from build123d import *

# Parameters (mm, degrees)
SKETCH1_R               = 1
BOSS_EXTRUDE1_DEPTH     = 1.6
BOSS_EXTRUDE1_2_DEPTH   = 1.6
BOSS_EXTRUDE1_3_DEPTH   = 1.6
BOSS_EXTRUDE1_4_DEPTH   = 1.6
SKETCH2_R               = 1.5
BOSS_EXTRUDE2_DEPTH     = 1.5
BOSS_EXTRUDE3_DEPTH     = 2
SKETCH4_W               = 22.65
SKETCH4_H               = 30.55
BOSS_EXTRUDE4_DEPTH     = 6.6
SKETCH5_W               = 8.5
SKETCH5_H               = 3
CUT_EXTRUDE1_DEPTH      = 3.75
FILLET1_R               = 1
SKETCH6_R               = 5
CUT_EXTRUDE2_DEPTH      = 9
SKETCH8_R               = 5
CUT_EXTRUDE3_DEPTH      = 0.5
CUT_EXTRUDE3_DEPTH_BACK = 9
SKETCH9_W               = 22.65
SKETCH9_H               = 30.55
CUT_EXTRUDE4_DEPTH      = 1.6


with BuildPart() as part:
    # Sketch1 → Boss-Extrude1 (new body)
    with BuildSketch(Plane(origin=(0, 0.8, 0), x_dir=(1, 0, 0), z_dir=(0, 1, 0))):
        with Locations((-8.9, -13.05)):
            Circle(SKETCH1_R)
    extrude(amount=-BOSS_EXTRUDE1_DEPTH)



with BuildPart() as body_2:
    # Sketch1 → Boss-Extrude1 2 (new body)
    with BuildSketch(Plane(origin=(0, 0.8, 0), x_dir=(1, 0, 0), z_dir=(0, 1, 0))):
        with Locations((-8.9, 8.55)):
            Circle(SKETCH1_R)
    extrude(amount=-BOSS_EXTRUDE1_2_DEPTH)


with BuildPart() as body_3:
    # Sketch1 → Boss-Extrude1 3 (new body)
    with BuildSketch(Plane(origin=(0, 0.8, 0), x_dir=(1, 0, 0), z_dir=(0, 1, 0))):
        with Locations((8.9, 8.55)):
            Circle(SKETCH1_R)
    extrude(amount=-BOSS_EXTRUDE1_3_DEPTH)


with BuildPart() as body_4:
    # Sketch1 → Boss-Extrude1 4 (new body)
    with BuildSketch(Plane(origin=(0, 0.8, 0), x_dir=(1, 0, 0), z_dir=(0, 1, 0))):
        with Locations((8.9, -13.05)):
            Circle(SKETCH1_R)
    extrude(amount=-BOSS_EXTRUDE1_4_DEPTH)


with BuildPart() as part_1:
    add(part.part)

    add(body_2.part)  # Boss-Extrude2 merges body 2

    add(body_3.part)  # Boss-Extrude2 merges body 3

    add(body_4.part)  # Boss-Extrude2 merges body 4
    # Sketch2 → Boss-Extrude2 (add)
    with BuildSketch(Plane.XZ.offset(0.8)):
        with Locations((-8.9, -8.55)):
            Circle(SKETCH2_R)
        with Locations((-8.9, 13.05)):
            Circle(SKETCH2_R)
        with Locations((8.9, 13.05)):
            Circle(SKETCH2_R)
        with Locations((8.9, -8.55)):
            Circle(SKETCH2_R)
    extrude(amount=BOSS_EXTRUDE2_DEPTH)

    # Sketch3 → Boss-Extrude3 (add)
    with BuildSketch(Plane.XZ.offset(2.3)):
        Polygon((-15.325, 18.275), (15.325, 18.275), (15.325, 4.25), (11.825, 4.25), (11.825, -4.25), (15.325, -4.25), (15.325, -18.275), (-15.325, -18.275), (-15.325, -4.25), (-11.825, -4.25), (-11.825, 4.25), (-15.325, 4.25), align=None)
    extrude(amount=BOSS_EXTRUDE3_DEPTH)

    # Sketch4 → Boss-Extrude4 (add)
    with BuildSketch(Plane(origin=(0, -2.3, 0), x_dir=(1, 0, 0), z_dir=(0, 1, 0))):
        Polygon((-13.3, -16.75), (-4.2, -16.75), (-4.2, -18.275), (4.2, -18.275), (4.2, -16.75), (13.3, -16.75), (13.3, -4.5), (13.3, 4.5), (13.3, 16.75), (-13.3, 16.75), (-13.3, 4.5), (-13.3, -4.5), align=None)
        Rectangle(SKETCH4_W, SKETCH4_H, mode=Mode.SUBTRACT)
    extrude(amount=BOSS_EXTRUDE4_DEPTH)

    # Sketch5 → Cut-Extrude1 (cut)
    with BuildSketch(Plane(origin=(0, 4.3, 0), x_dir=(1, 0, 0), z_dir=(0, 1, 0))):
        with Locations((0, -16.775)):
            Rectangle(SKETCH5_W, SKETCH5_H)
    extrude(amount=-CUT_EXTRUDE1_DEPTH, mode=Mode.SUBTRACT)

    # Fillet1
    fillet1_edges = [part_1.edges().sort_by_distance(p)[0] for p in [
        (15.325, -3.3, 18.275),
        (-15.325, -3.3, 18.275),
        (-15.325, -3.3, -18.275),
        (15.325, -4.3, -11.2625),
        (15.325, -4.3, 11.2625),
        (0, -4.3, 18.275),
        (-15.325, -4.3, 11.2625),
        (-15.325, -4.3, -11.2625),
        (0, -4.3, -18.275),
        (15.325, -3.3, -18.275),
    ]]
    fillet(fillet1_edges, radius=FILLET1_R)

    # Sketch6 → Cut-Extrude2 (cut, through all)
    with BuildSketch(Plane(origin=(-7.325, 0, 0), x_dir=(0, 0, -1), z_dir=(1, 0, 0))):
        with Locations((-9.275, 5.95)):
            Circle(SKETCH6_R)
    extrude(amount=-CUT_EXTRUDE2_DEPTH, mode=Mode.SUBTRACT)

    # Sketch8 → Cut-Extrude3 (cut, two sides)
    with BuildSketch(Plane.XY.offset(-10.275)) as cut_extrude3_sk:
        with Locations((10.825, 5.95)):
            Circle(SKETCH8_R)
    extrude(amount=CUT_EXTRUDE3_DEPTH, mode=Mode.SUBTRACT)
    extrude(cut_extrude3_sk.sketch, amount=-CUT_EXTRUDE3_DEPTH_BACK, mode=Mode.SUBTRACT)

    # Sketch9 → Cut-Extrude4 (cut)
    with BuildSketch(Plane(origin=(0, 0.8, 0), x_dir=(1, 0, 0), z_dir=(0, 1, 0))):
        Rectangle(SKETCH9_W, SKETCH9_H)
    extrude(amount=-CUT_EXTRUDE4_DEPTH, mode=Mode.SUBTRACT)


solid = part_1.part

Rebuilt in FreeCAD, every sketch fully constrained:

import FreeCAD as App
import Part
import Sketcher


def edges_at(feature, points):
    """Names of the edges that pass closest to the given points."""
    edges = feature.Shape.Edges
    near = lambda p: min(range(len(edges)), key=lambda i: edges[i].distToShape(Part.Vertex(*p))[0])
    return sorted({f"Edge{near(p) + 1}" for p in points})

doc = App.newDocument("Part")
body = doc.addObject("PartDesign::Body", "Body")

sketch1 = body.newObject("Sketcher::SketchObject", "Sketch")
sketch1.AttachmentSupport = (doc.getObject("XZ_Plane"), [""])
sketch1.MapMode = "FlatFace"
sketch1.AttachmentOffset = App.Placement(App.Vector(0, 0, -0.8), App.Rotation())
sketch1.addGeometry(Part.Circle(App.Vector(-8.9, 13.1, 0), App.Vector(0, 0, 1), 1), False)
sketch1.addConstraint([
    Sketcher.Constraint("Diameter", 0, 2.0),
    Sketcher.Constraint("DistanceX", 0, 3, -1, 1, 8.9),
    Sketcher.Constraint("DistanceY", -1, 1, 0, 3, 13.05),
])
pad1 = body.newObject("PartDesign::Pad", "Pad")
pad1.Profile = sketch1
pad1.Length = 1.6
body2 = doc.addObject("PartDesign::Body", "Body001")

sketch2 = body2.newObject("Sketcher::SketchObject", "Sketch001")
sketch2.AttachmentSupport = (doc.getObject("XZ_Plane001"), [""])
sketch2.MapMode = "FlatFace"
sketch2.AttachmentOffset = App.Placement(App.Vector(0, 0, -0.8), App.Rotation())
sketch2.addGeometry(Part.Circle(App.Vector(-8.9, -8.6, 0), App.Vector(0, 0, 1), 1), False)
sketch2.addConstraint([
    Sketcher.Constraint("Diameter", 0, 2.0),
    Sketcher.Constraint("DistanceX", 0, 3, -1, 1, 8.9),
    Sketcher.Constraint("DistanceY", 0, 3, -1, 1, 8.55),
])
pad2 = body2.newObject("PartDesign::Pad", "Pad001")
pad2.Profile = sketch2
pad2.Length = 1.6
body3 = doc.addObject("PartDesign::Body", "Body002")

sketch3 = body3.newObject("Sketcher::SketchObject", "Sketch002")
sketch3.AttachmentSupport = (doc.getObject("XZ_Plane002"), [""])
sketch3.MapMode = "FlatFace"
sketch3.AttachmentOffset = App.Placement(App.Vector(0, 0, -0.8), App.Rotation())
sketch3.addGeometry(Part.Circle(App.Vector(8.9, -8.6, 0), App.Vector(0, 0, 1), 1), False)
sketch3.addConstraint([
    Sketcher.Constraint("Diameter", 0, 2.0),
    Sketcher.Constraint("DistanceX", -1, 1, 0, 3, 8.9),
    Sketcher.Constraint("DistanceY", 0, 3, -1, 1, 8.55),
])
pad3 = body3.newObject("PartDesign::Pad", "Pad002")
pad3.Profile = sketch3
pad3.Length = 1.6
body4 = doc.addObject("PartDesign::Body", "Body003")

sketch4 = body4.newObject("Sketcher::SketchObject", "Sketch003")
sketch4.AttachmentSupport = (doc.getObject("XZ_Plane003"), [""])
sketch4.MapMode = "FlatFace"
sketch4.AttachmentOffset = App.Placement(App.Vector(0, 0, -0.8), App.Rotation())
sketch4.addGeometry(Part.Circle(App.Vector(8.9, 13.1, 0), App.Vector(0, 0, 1), 1), False)
sketch4.addConstraint([
    Sketcher.Constraint("Diameter", 0, 2.0),
    Sketcher.Constraint("DistanceX", -1, 1, 0, 3, 8.9),
    Sketcher.Constraint("DistanceY", -1, 1, 0, 3, 13.05),
])
pad4 = body4.newObject("PartDesign::Pad", "Pad003")
pad4.Profile = sketch4
pad4.Length = 1.6
body.AllowCompound = True
doc.recompute()

boolean = body.newObject("PartDesign::Boolean", "Boolean")
boolean.Type = "Fuse"
boolean.addObjects([body2])
doc.recompute()

boolean2 = body.newObject("PartDesign::Boolean", "Boolean001")
boolean2.Type = "Fuse"
boolean2.addObjects([body3])
doc.recompute()

boolean3 = body.newObject("PartDesign::Boolean", "Boolean002")
boolean3.Type = "Fuse"
boolean3.addObjects([body4])

sketch5 = body.newObject("Sketcher::SketchObject", "Sketch004")
sketch5.AttachmentSupport = (doc.getObject("XZ_Plane"), [""])
sketch5.MapMode = "FlatFace"
sketch5.AttachmentOffset = App.Placement(App.Vector(0, 0, 0.8), App.Rotation())
sketch5.addGeometry([
    Part.Circle(App.Vector(-8.9, -8.6, 0), App.Vector(0, 0, 1), 1.5),
    Part.Circle(App.Vector(-8.9, 13.1, 0), App.Vector(0, 0, 1), 1.5),
    Part.Circle(App.Vector(8.9, 13.1, 0), App.Vector(0, 0, 1), 1.5),
    Part.Circle(App.Vector(8.9, -8.6, 0), App.Vector(0, 0, 1), 1.5),
], False)
sketch5.addConstraint([
    Sketcher.Constraint("Equal", 0, 1),
    Sketcher.Constraint("Equal", 1, 2),
    Sketcher.Constraint("Equal", 2, 3),
    Sketcher.Constraint("Symmetric", 1, 3, 2, 3, -2),
    Sketcher.Constraint("Symmetric", 0, 3, 3, 3, -2),
    Sketcher.Constraint("Vertical", 0, 3, 1, 3),
    Sketcher.Constraint("Diameter", 0, 3.0),
    Sketcher.Constraint("DistanceX", 0, 3, -1, 1, 8.9),
    Sketcher.Constraint("DistanceY", 0, 3, 1, 3, 21.6),
    Sketcher.Constraint("DistanceY", 0, 3, -1, 1, 8.55),
])
pad5 = body.newObject("PartDesign::Pad", "Pad004")
pad5.Profile = sketch5
pad5.Length = 1.5

sketch6 = body.newObject("Sketcher::SketchObject", "Sketch005")
sketch6.AttachmentSupport = (doc.getObject("XZ_Plane"), [""])
sketch6.MapMode = "FlatFace"
sketch6.AttachmentOffset = App.Placement(App.Vector(0, 0, 2.3), App.Rotation())
sketch6.addGeometry([
    Part.LineSegment(App.Vector(15.3, 18.3, 0), App.Vector(-15.3, 18.3, 0)),
    Part.LineSegment(App.Vector(-15.3, 18.3, 0), App.Vector(-15.3, 4.2, 0)),
    Part.LineSegment(App.Vector(-15.3, 4.2, 0), App.Vector(-11.8, 4.2, 0)),
    Part.LineSegment(App.Vector(-11.8, 4.2, 0), App.Vector(-11.8, -4.2, 0)),
    Part.LineSegment(App.Vector(-11.8, -4.2, 0), App.Vector(-15.3, -4.2, 0)),
    Part.LineSegment(App.Vector(-15.3, -4.2, 0), App.Vector(-15.3, -18.3, 0)),
    Part.LineSegment(App.Vector(-15.3, -18.3, 0), App.Vector(15.3, -18.3, 0)),
    Part.LineSegment(App.Vector(15.3, -18.3, 0), App.Vector(15.3, -4.2, 0)),
    Part.LineSegment(App.Vector(15.3, -4.2, 0), App.Vector(11.8, -4.2, 0)),
    Part.LineSegment(App.Vector(11.8, -4.2, 0), App.Vector(11.8, 4.2, 0)),
    Part.LineSegment(App.Vector(11.8, 4.2, 0), App.Vector(15.3, 4.2, 0)),
    Part.LineSegment(App.Vector(15.3, 4.2, 0), App.Vector(15.3, 18.3, 0)),
], False)
sketch6.addConstraint([
    Sketcher.Constraint("Coincident", 0, 2, 1, 1),
    Sketcher.Constraint("Coincident", 1, 2, 2, 1),
    Sketcher.Constraint("Coincident", 2, 2, 3, 1),
    Sketcher.Constraint("Coincident", 3, 2, 4, 1),
    Sketcher.Constraint("Coincident", 4, 2, 5, 1),
    Sketcher.Constraint("Coincident", 5, 2, 6, 1),
    Sketcher.Constraint("Coincident", 6, 2, 7, 1),
    Sketcher.Constraint("Coincident", 7, 2, 8, 1),
    Sketcher.Constraint("Coincident", 8, 2, 9, 1),
    Sketcher.Constraint("Coincident", 9, 2, 10, 1),
    Sketcher.Constraint("Coincident", 10, 2, 11, 1),
    Sketcher.Constraint("Coincident", 11, 2, 0, 1),
    Sketcher.Constraint("Horizontal", 0),
    Sketcher.Constraint("Vertical", 1),
    Sketcher.Constraint("Horizontal", 2),
    Sketcher.Constraint("Vertical", 3),
    Sketcher.Constraint("Horizontal", 4),
    Sketcher.Constraint("Vertical", 5),
    Sketcher.Constraint("Horizontal", 6),
    Sketcher.Constraint("Vertical", 7),
    Sketcher.Constraint("Horizontal", 8),
    Sketcher.Constraint("Vertical", 9),
    Sketcher.Constraint("Horizontal", 10),
    Sketcher.Constraint("Vertical", 11),
    Sketcher.Constraint("Symmetric", 0, 2, 6, 2, -1, 1),
    Sketcher.Constraint("Symmetric", 2, 2, 8, 2, -1, 1),
    Sketcher.Constraint("Symmetric", 4, 2, 10, 2, -1, 1),
    Sketcher.Constraint("Symmetric", 4, 2, 7, 2, -2),
    Sketcher.Constraint("DistanceX", 2, 1, 2, 2, 3.5),
    Sketcher.Constraint("DistanceY", 3, 2, 3, 1, 8.5),
    Sketcher.Constraint("DistanceX", 0, 2, 0, 1, 30.65),
    Sketcher.Constraint("DistanceY", 1, 2, 1, 1, 14.025),
])
pad6 = body.newObject("PartDesign::Pad", "Pad005")
pad6.Profile = sketch6
pad6.Length = 2

sketch7 = body.newObject("Sketcher::SketchObject", "Sketch006")
sketch7.AttachmentSupport = (doc.getObject("XZ_Plane"), [""])
sketch7.MapMode = "FlatFace"
sketch7.AttachmentOffset = App.Placement(App.Vector(0, 0, 2.3), App.Rotation())
sketch7.addGeometry([
    Part.LineSegment(App.Vector(-13.3, 16.8, 0), App.Vector(-4.2, 16.8, 0)),
    Part.LineSegment(App.Vector(-4.2, 16.8, 0), App.Vector(-4.2, 18.3, 0)),
    Part.LineSegment(App.Vector(-4.2, 18.3, 0), App.Vector(4.2, 18.3, 0)),
    Part.LineSegment(App.Vector(4.2, 18.3, 0), App.Vector(4.2, 16.8, 0)),
    Part.LineSegment(App.Vector(4.2, 16.8, 0), App.Vector(13.3, 16.8, 0)),
    Part.LineSegment(App.Vector(13.3, 16.8, 0), App.Vector(13.3, -16.8, 0)),
    Part.LineSegment(App.Vector(13.3, -16.8, 0), App.Vector(-13.3, -16.8, 0)),
    Part.LineSegment(App.Vector(-13.3, -16.8, 0), App.Vector(-13.3, 16.8, 0)),
    Part.LineSegment(App.Vector(11.3, 15.3, 0), App.Vector(-11.3, 15.3, 0)),
    Part.LineSegment(App.Vector(-11.3, 15.3, 0), App.Vector(-11.3, -15.3, 0)),
    Part.LineSegment(App.Vector(-11.3, -15.3, 0), App.Vector(11.3, -15.3, 0)),
    Part.LineSegment(App.Vector(11.3, -15.3, 0), App.Vector(11.3, 15.3, 0)),
], False)
sketch7.addConstraint([
    Sketcher.Constraint("Coincident", 0, 2, 1, 1),
    Sketcher.Constraint("Coincident", 1, 2, 2, 1),
    Sketcher.Constraint("Coincident", 2, 2, 3, 1),
    Sketcher.Constraint("Coincident", 3, 2, 4, 1),
    Sketcher.Constraint("Coincident", 4, 2, 5, 1),
    Sketcher.Constraint("Coincident", 5, 2, 6, 1),
    Sketcher.Constraint("Coincident", 6, 2, 7, 1),
    Sketcher.Constraint("Coincident", 7, 2, 0, 1),
    Sketcher.Constraint("Coincident", 8, 2, 9, 1),
    Sketcher.Constraint("Coincident", 9, 2, 10, 1),
    Sketcher.Constraint("Coincident", 10, 2, 11, 1),
    Sketcher.Constraint("Coincident", 11, 2, 8, 1),
    Sketcher.Constraint("Horizontal", 0),
    Sketcher.Constraint("Vertical", 1),
    Sketcher.Constraint("Horizontal", 2),
    Sketcher.Constraint("Vertical", 3),
    Sketcher.Constraint("Horizontal", 4),
    Sketcher.Constraint("Vertical", 5),
    Sketcher.Constraint("Horizontal", 6),
    Sketcher.Constraint("Vertical", 7),
    Sketcher.Constraint("Horizontal", 8),
    Sketcher.Constraint("Vertical", 9),
    Sketcher.Constraint("Horizontal", 10),
    Sketcher.Constraint("Vertical", 11),
    Sketcher.Constraint("Symmetric", 4, 2, 6, 2, -1, 1),
    Sketcher.Constraint("Symmetric", 8, 2, 10, 2, -1, 1),
    Sketcher.Constraint("Symmetric", 0, 2, 3, 2, -2),
    Sketcher.Constraint("DistanceX", 0, 1, 0, 2, 9.1),
    Sketcher.Constraint("DistanceX", 2, 1, 2, 2, 8.4),
    Sketcher.Constraint("DistanceY", 5, 2, 5, 1, 33.5),
    Sketcher.Constraint("DistanceY", 8, 2, 1, 2, 3.0),
    Sketcher.Constraint("DistanceX", 8, 2, 8, 1, 22.65),
    Sketcher.Constraint("DistanceY", 9, 2, 9, 1, 30.55),
])
pad7 = body.newObject("PartDesign::Pad", "Pad006")
pad7.Profile = sketch7
pad7.Length = 6.6
pad7.Reversed = True

sketch8 = body.newObject("Sketcher::SketchObject", "Sketch007")
sketch8.AttachmentSupport = (doc.getObject("XZ_Plane"), [""])
sketch8.MapMode = "FlatFace"
sketch8.AttachmentOffset = App.Placement(App.Vector(0, 0, -4.3), App.Rotation())
sketch8.addGeometry([
    Part.LineSegment(App.Vector(-4.2, 15.3, 0), App.Vector(-4.2, 18.3, 0)),
    Part.LineSegment(App.Vector(-4.2, 18.3, 0), App.Vector(4.2, 18.3, 0)),
    Part.LineSegment(App.Vector(4.2, 18.3, 0), App.Vector(4.2, 15.3, 0)),
    Part.LineSegment(App.Vector(4.2, 15.3, 0), App.Vector(-4.2, 15.3, 0)),
], False)
sketch8.addConstraint([
    Sketcher.Constraint("Coincident", 0, 2, 1, 1),
    Sketcher.Constraint("Coincident", 1, 2, 2, 1),
    Sketcher.Constraint("Coincident", 2, 2, 3, 1),
    Sketcher.Constraint("Coincident", 3, 2, 0, 1),
    Sketcher.Constraint("Vertical", 0),
    Sketcher.Constraint("Horizontal", 1),
    Sketcher.Constraint("Vertical", 2),
    Sketcher.Constraint("Horizontal", 3),
    Sketcher.Constraint("DistanceY", 0, 1, 0, 2, 3.0),
    Sketcher.Constraint("DistanceX", 1, 1, 1, 2, 8.5),
    Sketcher.Constraint("DistanceX", 0, 2, -1, 1, 4.25),
    Sketcher.Constraint("DistanceY", -1, 1, 0, 2, 18.275),
])
pocket1 = body.newObject("PartDesign::Pocket", "Pocket")
pocket1.Profile = sketch8
pocket1.Length = 3.75
pocket1.Reversed = True
doc.recompute()

fillet = body.newObject("PartDesign::Fillet", "Fillet")
fillet.Base = (pocket1, edges_at(pocket1, [
    (15.325, -3.3, 18.275),
    (-15.325, -3.3, 18.275),
    (-15.325, -3.3, -18.275),
    (15.325, -4.3, -11.262),
    (15.325, -4.3, 11.262),
    (0, -4.3, 18.275),
    (-15.325, -4.3, 11.262),
    (-15.325, -4.3, -11.262),
    (0, -4.3, -18.275),
    (15.325, -3.3, -18.275),
]))
fillet.Radius = 1

sketch9 = body.newObject("Sketcher::SketchObject", "Sketch008")
sketch9.AttachmentSupport = (doc.getObject("YZ_Plane"), [""])
sketch9.MapMode = "FlatFace"
sketch9.AttachmentOffset = App.Placement(App.Vector(0, 0, -7.325), App.Rotation())
sketch9.addGeometry(Part.Circle(App.Vector(6, 9, 0), App.Vector(0, 0, 1), 5), False)
sketch9.addConstraint([
    Sketcher.Constraint("Diameter", 0, 10.0),
    Sketcher.Constraint("DistanceX", -1, 1, 0, 3, 5.95),
    Sketcher.Constraint("DistanceY", -1, 1, 0, 3, 9.275),
])
pocket2 = body.newObject("PartDesign::Pocket", "Pocket001")
pocket2.Profile = sketch9
pocket2.Type = "ThroughAll"

sketch10 = body.newObject("Sketcher::SketchObject", "Sketch009")
sketch10.AttachmentSupport = (doc.getObject("XY_Plane"), [""])
sketch10.MapMode = "FlatFace"
sketch10.AttachmentOffset = App.Placement(App.Vector(0, 0, -10.275), App.Rotation())
sketch10.addGeometry(Part.Circle(App.Vector(11, 6, 0), App.Vector(0, 0, 1), 5), False)
sketch10.addConstraint([
    Sketcher.Constraint("Diameter", 0, 10.0),
    Sketcher.Constraint("DistanceY", -1, 1, 0, 3, 5.95),
    Sketcher.Constraint("DistanceX", -1, 1, 0, 3, 10.825),
])
pocket3 = body.newObject("PartDesign::Pocket", "Pocket002")
pocket3.Profile = sketch10
pocket3.Type = "TwoLengths"
pocket3.Length = 0.5
pocket3.Length2 = 9
pocket3.Reversed = True

sketch11 = body.newObject("Sketcher::SketchObject", "Sketch010")
sketch11.AttachmentSupport = (doc.getObject("XZ_Plane"), [""])
sketch11.MapMode = "FlatFace"
sketch11.AttachmentOffset = App.Placement(App.Vector(0, 0, -0.8), App.Rotation())
sketch11.addGeometry([
    Part.LineSegment(App.Vector(-11, -15, 0), App.Vector(-11, 15, 0)),
    Part.LineSegment(App.Vector(-11, 15, 0), App.Vector(11, 15, 0)),
    Part.LineSegment(App.Vector(11, 15, 0), App.Vector(11, -15, 0)),
    Part.LineSegment(App.Vector(11, -15, 0), App.Vector(-11, -15, 0)),
], False)
sketch11.addConstraint([
    Sketcher.Constraint("Coincident", 0, 2, 1, 1),
    Sketcher.Constraint("Coincident", 1, 2, 2, 1),
    Sketcher.Constraint("Coincident", 2, 2, 3, 1),
    Sketcher.Constraint("Coincident", 3, 2, 0, 1),
    Sketcher.Constraint("Vertical", 0),
    Sketcher.Constraint("Horizontal", 1),
    Sketcher.Constraint("Vertical", 2),
    Sketcher.Constraint("Horizontal", 3),
    Sketcher.Constraint("Symmetric", 0, 2, 2, 2, -1, 1),
    Sketcher.Constraint("DistanceX", 1, 1, 1, 2, 22.65),
    Sketcher.Constraint("DistanceY", 0, 1, 0, 2, 30.55),
])
pocket4 = body.newObject("PartDesign::Pocket", "Pocket003")
pocket4.Profile = sketch11
pocket4.Length = 1.6
pocket4.Reversed = True

doc.recompute()
